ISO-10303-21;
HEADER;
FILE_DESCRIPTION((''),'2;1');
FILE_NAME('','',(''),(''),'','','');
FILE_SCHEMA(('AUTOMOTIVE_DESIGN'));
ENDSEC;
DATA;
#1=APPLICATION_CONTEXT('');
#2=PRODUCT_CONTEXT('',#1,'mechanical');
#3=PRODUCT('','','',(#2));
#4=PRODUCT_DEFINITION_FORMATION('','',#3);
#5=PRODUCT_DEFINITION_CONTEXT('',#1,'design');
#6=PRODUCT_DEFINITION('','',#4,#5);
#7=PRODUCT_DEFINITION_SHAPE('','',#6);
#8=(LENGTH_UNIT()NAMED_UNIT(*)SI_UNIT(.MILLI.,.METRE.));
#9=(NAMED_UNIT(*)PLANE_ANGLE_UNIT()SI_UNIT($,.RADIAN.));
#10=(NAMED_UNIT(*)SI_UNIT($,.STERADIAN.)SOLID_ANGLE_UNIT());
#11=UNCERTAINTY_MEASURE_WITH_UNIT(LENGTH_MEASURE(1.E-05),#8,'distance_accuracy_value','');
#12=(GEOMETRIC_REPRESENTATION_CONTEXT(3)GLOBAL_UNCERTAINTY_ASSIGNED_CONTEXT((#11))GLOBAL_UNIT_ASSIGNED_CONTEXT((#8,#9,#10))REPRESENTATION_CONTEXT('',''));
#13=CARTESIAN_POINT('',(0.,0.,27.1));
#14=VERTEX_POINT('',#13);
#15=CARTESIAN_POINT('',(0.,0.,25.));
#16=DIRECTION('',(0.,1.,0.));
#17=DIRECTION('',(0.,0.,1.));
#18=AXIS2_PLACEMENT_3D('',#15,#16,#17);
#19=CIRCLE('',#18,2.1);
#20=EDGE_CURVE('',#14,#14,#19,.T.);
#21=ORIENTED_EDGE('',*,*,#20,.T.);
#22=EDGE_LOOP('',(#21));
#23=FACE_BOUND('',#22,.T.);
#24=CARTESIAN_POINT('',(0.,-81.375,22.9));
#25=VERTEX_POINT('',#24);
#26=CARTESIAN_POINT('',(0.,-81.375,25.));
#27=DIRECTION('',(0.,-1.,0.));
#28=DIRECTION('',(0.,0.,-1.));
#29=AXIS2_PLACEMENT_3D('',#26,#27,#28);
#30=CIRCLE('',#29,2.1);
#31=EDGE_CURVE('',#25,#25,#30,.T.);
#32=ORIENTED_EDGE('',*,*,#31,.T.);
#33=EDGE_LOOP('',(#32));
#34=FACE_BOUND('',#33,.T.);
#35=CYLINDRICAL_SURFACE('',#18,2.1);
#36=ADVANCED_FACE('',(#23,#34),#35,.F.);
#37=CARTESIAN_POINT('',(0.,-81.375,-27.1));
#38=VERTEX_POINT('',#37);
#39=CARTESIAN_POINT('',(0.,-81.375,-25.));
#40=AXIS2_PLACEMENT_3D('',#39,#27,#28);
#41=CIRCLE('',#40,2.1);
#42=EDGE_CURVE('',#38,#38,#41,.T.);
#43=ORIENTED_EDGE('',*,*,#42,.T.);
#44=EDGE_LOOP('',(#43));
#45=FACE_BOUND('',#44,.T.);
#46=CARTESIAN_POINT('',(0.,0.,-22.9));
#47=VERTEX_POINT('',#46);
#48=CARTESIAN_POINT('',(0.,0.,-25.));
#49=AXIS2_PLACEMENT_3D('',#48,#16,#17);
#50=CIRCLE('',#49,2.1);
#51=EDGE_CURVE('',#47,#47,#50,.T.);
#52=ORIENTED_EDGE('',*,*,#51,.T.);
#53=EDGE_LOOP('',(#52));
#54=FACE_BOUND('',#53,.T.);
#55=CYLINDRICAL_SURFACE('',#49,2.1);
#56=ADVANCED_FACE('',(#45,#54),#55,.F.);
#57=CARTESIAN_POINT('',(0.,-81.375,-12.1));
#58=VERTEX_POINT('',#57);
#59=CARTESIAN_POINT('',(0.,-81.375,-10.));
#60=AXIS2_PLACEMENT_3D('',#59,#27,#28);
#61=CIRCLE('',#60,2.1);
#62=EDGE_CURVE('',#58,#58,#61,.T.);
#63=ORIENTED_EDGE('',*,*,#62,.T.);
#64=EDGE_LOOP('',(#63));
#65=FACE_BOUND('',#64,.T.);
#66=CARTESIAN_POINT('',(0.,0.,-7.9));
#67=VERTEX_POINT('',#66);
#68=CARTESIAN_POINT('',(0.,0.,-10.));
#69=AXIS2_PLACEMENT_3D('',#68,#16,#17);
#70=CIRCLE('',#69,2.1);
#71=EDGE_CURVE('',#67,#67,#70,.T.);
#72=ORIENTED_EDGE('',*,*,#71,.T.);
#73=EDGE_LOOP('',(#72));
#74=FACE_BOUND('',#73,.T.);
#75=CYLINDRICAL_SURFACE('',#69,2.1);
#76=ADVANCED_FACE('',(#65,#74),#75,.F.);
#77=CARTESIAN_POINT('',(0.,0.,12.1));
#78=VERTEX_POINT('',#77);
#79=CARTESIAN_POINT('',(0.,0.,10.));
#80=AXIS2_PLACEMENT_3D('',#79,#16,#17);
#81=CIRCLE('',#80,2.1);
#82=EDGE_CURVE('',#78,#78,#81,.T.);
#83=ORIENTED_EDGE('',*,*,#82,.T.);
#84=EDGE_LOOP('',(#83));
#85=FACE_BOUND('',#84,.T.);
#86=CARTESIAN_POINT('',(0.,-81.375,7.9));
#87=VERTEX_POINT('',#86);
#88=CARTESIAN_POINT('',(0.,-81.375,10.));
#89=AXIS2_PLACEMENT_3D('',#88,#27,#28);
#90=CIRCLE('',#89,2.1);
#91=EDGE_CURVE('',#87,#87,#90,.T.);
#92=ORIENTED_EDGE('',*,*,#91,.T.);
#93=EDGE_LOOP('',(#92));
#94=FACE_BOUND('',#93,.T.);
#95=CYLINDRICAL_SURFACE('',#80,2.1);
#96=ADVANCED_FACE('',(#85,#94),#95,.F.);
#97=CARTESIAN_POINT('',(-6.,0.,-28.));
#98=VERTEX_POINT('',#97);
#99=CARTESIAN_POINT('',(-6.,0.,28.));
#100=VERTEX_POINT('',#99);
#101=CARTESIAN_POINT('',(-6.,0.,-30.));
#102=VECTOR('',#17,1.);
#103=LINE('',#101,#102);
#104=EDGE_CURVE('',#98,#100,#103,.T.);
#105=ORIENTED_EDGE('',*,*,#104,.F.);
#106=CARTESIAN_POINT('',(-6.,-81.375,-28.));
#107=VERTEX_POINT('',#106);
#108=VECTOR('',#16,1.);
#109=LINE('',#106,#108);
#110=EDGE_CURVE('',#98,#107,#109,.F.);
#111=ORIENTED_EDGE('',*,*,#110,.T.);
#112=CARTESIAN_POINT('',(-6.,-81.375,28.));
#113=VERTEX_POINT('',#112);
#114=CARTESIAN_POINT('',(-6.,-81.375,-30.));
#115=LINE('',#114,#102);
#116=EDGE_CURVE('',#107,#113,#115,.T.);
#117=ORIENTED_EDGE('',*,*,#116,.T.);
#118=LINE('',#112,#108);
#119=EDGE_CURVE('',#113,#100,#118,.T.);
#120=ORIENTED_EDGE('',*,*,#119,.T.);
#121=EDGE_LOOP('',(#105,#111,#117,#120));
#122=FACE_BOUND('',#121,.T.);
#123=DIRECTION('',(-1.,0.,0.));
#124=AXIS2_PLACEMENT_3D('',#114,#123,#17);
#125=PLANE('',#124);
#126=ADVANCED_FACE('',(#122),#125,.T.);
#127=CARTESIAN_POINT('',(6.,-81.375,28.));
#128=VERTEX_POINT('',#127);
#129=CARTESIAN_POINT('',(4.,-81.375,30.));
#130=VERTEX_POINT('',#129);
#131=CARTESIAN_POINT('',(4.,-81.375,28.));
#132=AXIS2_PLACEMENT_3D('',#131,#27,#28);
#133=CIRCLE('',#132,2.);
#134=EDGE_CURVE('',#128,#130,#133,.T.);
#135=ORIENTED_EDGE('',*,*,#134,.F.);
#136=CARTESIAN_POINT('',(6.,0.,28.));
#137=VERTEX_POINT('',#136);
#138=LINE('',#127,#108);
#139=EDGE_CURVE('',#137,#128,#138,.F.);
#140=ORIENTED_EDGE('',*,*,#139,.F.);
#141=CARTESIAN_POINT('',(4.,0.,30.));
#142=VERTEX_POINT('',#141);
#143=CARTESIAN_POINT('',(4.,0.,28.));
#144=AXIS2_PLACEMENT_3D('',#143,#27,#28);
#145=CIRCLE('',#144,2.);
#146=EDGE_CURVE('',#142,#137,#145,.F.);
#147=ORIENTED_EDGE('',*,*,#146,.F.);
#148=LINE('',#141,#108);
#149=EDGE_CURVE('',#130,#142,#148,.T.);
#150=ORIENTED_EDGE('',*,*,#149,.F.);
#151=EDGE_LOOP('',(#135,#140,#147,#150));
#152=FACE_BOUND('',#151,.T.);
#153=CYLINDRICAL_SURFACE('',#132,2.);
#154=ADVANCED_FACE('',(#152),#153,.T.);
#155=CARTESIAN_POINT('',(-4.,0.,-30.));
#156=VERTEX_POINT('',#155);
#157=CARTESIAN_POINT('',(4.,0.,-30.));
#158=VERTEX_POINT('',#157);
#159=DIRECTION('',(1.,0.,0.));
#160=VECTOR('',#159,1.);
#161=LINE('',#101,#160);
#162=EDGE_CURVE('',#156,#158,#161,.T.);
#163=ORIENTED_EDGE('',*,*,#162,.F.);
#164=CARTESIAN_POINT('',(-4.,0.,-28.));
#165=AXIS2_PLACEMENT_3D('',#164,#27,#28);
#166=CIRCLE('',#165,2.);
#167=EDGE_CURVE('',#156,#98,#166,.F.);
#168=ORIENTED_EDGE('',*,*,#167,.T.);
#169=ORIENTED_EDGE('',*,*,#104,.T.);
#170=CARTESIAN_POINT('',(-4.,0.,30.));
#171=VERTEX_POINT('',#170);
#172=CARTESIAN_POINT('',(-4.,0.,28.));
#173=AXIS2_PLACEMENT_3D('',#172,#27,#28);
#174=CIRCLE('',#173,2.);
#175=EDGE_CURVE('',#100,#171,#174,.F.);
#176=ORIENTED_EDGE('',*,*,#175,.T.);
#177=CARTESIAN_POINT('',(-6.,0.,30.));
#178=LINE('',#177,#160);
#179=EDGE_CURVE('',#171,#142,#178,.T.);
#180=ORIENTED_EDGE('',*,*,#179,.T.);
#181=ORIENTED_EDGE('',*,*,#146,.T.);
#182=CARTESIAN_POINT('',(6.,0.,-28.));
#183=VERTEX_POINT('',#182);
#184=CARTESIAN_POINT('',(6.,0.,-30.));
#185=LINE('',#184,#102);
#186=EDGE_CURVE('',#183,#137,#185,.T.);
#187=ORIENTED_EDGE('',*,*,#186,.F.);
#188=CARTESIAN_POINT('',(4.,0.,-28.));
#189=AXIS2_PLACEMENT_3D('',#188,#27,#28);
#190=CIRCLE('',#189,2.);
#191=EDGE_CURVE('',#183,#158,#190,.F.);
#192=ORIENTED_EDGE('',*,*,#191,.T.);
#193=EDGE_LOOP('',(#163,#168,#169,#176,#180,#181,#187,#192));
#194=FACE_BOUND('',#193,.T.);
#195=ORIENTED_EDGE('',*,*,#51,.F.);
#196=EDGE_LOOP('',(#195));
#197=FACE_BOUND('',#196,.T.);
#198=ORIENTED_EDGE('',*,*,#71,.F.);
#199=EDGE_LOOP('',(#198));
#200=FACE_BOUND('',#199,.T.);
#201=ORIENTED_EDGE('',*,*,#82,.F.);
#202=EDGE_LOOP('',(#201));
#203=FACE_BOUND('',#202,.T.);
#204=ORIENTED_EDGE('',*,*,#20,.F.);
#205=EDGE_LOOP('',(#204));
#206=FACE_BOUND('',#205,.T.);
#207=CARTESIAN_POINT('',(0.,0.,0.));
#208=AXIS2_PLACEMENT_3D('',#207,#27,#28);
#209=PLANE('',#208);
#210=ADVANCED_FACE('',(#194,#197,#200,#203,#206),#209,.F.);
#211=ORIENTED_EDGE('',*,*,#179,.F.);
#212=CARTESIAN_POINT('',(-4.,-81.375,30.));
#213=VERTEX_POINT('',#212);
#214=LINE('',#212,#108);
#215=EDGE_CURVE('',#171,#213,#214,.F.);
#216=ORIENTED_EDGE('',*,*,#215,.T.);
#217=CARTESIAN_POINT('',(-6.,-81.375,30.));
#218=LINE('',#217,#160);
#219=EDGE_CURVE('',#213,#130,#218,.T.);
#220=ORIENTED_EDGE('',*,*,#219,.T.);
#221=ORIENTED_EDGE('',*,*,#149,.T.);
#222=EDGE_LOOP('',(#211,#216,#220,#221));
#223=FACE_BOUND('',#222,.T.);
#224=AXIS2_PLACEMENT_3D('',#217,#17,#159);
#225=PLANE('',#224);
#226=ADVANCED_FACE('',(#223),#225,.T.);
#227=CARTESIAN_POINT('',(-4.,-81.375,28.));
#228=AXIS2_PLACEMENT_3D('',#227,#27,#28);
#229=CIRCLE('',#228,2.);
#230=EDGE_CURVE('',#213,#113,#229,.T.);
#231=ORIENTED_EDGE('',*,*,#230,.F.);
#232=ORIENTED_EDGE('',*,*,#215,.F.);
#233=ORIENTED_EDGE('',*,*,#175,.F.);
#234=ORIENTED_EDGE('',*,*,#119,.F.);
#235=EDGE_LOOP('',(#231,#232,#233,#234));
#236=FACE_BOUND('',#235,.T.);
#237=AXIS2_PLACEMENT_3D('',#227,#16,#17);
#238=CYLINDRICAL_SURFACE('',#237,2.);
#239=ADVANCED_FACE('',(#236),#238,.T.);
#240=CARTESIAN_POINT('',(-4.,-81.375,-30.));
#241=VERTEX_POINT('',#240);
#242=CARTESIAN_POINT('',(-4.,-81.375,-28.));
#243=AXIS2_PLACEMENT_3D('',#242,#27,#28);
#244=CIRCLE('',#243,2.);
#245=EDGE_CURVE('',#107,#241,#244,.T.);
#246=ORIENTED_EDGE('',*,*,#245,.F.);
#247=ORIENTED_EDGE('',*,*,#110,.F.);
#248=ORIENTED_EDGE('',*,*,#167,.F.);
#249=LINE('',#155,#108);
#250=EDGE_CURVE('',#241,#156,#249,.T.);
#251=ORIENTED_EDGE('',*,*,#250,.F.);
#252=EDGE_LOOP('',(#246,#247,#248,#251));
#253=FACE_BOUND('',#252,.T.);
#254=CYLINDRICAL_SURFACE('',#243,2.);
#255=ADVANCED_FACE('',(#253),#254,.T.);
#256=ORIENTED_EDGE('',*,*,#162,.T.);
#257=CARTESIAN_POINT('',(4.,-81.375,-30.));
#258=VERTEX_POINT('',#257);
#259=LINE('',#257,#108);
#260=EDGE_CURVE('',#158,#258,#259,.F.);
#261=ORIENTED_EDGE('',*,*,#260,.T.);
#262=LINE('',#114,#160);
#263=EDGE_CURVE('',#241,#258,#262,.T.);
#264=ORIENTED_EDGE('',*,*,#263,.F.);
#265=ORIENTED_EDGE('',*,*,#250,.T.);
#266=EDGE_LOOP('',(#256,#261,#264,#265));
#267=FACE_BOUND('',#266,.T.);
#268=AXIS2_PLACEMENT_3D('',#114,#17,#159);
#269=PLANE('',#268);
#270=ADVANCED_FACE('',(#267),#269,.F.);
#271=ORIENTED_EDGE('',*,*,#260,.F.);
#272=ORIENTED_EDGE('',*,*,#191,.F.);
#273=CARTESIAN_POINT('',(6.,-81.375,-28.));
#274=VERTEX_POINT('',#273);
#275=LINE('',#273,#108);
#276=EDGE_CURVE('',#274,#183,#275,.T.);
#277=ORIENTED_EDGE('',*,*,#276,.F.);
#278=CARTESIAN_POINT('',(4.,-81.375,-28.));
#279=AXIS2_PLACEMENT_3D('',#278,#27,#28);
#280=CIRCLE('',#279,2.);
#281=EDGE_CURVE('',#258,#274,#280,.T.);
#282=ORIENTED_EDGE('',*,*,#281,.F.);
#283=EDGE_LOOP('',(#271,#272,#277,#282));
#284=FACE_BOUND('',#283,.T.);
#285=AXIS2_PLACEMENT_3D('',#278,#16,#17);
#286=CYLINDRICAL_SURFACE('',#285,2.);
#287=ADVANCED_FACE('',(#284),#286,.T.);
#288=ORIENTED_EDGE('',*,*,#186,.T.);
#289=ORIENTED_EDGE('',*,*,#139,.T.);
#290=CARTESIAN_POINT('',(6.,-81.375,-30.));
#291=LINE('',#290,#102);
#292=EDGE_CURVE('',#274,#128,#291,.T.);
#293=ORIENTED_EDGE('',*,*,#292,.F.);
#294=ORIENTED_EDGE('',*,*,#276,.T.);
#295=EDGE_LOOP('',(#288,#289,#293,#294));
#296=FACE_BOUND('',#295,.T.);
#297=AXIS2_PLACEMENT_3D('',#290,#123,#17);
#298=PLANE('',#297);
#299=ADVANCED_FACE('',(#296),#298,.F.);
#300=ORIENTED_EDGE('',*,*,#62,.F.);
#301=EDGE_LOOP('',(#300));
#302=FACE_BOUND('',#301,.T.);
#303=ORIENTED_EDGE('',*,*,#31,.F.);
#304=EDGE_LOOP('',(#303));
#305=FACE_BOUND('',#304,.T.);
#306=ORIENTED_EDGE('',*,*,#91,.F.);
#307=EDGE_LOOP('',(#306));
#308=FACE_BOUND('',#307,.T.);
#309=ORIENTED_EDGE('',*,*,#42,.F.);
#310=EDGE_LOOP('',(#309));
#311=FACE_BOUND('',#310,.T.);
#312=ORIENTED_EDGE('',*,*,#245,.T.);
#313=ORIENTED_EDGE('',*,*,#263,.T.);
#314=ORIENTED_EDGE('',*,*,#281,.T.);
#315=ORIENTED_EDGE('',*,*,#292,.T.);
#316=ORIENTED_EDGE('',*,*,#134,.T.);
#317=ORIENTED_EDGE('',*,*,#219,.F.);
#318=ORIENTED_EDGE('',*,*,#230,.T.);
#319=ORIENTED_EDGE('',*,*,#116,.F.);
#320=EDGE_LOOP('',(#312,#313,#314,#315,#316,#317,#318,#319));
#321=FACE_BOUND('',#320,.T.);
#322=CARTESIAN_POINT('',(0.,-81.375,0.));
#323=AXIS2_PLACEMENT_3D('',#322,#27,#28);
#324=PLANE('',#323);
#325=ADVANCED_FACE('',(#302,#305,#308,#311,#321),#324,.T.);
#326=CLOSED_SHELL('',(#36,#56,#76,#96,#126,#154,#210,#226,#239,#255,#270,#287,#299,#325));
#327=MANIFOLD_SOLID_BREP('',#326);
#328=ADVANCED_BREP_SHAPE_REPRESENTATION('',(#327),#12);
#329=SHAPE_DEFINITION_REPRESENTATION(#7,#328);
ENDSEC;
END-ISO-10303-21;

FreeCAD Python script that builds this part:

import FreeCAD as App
import Part
import Sketcher
from FreeCAD import Vector
Q = App.Units.Quantity


def edges_at(feature, points):
    """Names of the edges that pass closest to the given points."""
    edges = feature.Shape.Edges
    near = lambda p: min(range(len(edges)), key=lambda i: edges[i].distToShape(Part.Vertex(*p))[0])
    return sorted({f"Edge{near(p) + 1}" for p in points})

doc = App.newDocument("Part")
params = doc.addObject("Spreadsheet::Sheet", "Params")
for row, (alias, value) in enumerate([
    ("sketch1_width", "12 mm"),
    ("sketch1_height", "60 mm"),
    ("pad1_length", "81.375 mm"),
    ("sketch2_diameter", "4.2 mm"),
    ("hole_diameter", "4.2 mm"),
    ("fillet_radius", "2 mm"),
], start=1):
    params.set(f"A{row}", alias)
    params.set(f"B{row}", "=" + value)
    params.setAlias(f"B{row}", alias)

body = doc.addObject("PartDesign::Body", "Body")

sketch1 = doc.addObject("Sketcher::SketchObject", "Sketch")
body.addObject(sketch1)
sketch1.AttachmentSupport = (doc.XZ_Plane, [""])
sketch1.MapMode = "FlatFace"
sketch1.addGeometry(Part.LineSegment(Vector(-6, -30, 0), Vector(-6, 30, 0)), False)
sketch1.addGeometry(Part.LineSegment(Vector(-6, 30, 0), Vector(6, 30, 0)), False)
sketch1.addGeometry(Part.LineSegment(Vector(6, 30, 0), Vector(6, -30, 0)), False)
sketch1.addGeometry(Part.LineSegment(Vector(6, -30, 0), Vector(-6, -30, 0)), False)
sketch1.addConstraint(Sketcher.Constraint("Coincident", 0, 2, 1, 1))
sketch1.addConstraint(Sketcher.Constraint("Coincident", 1, 2, 2, 1))
sketch1.addConstraint(Sketcher.Constraint("Coincident", 2, 2, 3, 1))
sketch1.addConstraint(Sketcher.Constraint("Coincident", 3, 2, 0, 1))
sketch1.addConstraint(Sketcher.Constraint("Vertical", 0))
sketch1.addConstraint(Sketcher.Constraint("Horizontal", 1))
sketch1.addConstraint(Sketcher.Constraint("Vertical", 2))
sketch1.addConstraint(Sketcher.Constraint("Horizontal", 3))
sketch1.addConstraint(Sketcher.Constraint("Symmetric", 0, 2, 2, 2, -1, 1))
sketch1.addConstraint(Sketcher.Constraint("DistanceX", 1, 1, 1, 2, Q("12 mm")))
sketch1.addConstraint(Sketcher.Constraint("DistanceY", 0, 1, 0, 2, Q("60 mm")))
sketch1.setExpression("Constraints[9]", "Params.sketch1_width")
sketch1.setExpression("Constraints[10]", "Params.sketch1_height")
pad1 = doc.addObject("PartDesign::Pad", "Pad")
body.addObject(pad1)
pad1.Profile = sketch1
pad1.setExpression("Length", "Params.pad1_length")

sketch2 = doc.addObject("Sketcher::SketchObject", "Sketch001")
body.addObject(sketch2)
sketch2.AttachmentSupport = (doc.XZ_Plane, [""])
sketch2.MapMode = "FlatFace"
sketch2.addGeometry(Part.Circle(Vector(0, -10, 0), Vector(0, 0, 1), 2.1), False)
sketch2.addGeometry(Part.Circle(Vector(0, 10, 0), Vector(0, 0, 1), 2.1), False)
sketch2.addGeometry(Part.Circle(Vector(0, -25, 0), Vector(0, 0, 1), 2.1), False)
sketch2.addGeometry(Part.Circle(Vector(0, 25, 0), Vector(0, 0, 1), 2.1), False)
sketch2.addConstraint(Sketcher.Constraint("Equal", 0, 1))
sketch2.addConstraint(Sketcher.Constraint("Equal", 1, 2))
sketch2.addConstraint(Sketcher.Constraint("Equal", 2, 3))
sketch2.addConstraint(Sketcher.Constraint("Symmetric", 0, 3, 1, 3, -1, 1))
sketch2.addConstraint(Sketcher.Constraint("Symmetric", 2, 3, 3, 3, -1, 1))
sketch2.addConstraint(Sketcher.Constraint("PointOnObject", 0, 3, -2))
sketch2.addConstraint(Sketcher.Constraint("PointOnObject", 2, 3, -2))
sketch2.addConstraint(Sketcher.Constraint("Diameter", 0, Q("4.2 mm")))
sketch2.addConstraint(Sketcher.Constraint("DistanceY", 0, 3, -1, 1, Q("10 mm")))
sketch2.addConstraint(Sketcher.Constraint("DistanceY", 2, 3, -1, 1, Q("25 mm")))
sketch2.setExpression("Constraints[7]", "Params.sketch2_diameter")
doc.recompute()
hole = doc.addObject("PartDesign::Hole", "Hole")
body.addObject(hole)
hole.Profile = sketch2
hole.ThreadType = "None"
hole.setExpression("Diameter", "Params.hole_diameter")
hole.DepthType = "ThroughAll"
hole.Reversed = True
doc.recompute()

fillet = doc.addObject("PartDesign::Fillet", "Fillet")
body.addObject(fillet)
fillet.Base = (hole, edges_at(hole, [
    (-6, -40.688, -30),
    (-6, -40.688, 30),
    (6, -40.688, 30),
    (6, -40.688, -30),
]))
fillet.setExpression("Radius", "Params.fillet_radius")

doc.recompute()
